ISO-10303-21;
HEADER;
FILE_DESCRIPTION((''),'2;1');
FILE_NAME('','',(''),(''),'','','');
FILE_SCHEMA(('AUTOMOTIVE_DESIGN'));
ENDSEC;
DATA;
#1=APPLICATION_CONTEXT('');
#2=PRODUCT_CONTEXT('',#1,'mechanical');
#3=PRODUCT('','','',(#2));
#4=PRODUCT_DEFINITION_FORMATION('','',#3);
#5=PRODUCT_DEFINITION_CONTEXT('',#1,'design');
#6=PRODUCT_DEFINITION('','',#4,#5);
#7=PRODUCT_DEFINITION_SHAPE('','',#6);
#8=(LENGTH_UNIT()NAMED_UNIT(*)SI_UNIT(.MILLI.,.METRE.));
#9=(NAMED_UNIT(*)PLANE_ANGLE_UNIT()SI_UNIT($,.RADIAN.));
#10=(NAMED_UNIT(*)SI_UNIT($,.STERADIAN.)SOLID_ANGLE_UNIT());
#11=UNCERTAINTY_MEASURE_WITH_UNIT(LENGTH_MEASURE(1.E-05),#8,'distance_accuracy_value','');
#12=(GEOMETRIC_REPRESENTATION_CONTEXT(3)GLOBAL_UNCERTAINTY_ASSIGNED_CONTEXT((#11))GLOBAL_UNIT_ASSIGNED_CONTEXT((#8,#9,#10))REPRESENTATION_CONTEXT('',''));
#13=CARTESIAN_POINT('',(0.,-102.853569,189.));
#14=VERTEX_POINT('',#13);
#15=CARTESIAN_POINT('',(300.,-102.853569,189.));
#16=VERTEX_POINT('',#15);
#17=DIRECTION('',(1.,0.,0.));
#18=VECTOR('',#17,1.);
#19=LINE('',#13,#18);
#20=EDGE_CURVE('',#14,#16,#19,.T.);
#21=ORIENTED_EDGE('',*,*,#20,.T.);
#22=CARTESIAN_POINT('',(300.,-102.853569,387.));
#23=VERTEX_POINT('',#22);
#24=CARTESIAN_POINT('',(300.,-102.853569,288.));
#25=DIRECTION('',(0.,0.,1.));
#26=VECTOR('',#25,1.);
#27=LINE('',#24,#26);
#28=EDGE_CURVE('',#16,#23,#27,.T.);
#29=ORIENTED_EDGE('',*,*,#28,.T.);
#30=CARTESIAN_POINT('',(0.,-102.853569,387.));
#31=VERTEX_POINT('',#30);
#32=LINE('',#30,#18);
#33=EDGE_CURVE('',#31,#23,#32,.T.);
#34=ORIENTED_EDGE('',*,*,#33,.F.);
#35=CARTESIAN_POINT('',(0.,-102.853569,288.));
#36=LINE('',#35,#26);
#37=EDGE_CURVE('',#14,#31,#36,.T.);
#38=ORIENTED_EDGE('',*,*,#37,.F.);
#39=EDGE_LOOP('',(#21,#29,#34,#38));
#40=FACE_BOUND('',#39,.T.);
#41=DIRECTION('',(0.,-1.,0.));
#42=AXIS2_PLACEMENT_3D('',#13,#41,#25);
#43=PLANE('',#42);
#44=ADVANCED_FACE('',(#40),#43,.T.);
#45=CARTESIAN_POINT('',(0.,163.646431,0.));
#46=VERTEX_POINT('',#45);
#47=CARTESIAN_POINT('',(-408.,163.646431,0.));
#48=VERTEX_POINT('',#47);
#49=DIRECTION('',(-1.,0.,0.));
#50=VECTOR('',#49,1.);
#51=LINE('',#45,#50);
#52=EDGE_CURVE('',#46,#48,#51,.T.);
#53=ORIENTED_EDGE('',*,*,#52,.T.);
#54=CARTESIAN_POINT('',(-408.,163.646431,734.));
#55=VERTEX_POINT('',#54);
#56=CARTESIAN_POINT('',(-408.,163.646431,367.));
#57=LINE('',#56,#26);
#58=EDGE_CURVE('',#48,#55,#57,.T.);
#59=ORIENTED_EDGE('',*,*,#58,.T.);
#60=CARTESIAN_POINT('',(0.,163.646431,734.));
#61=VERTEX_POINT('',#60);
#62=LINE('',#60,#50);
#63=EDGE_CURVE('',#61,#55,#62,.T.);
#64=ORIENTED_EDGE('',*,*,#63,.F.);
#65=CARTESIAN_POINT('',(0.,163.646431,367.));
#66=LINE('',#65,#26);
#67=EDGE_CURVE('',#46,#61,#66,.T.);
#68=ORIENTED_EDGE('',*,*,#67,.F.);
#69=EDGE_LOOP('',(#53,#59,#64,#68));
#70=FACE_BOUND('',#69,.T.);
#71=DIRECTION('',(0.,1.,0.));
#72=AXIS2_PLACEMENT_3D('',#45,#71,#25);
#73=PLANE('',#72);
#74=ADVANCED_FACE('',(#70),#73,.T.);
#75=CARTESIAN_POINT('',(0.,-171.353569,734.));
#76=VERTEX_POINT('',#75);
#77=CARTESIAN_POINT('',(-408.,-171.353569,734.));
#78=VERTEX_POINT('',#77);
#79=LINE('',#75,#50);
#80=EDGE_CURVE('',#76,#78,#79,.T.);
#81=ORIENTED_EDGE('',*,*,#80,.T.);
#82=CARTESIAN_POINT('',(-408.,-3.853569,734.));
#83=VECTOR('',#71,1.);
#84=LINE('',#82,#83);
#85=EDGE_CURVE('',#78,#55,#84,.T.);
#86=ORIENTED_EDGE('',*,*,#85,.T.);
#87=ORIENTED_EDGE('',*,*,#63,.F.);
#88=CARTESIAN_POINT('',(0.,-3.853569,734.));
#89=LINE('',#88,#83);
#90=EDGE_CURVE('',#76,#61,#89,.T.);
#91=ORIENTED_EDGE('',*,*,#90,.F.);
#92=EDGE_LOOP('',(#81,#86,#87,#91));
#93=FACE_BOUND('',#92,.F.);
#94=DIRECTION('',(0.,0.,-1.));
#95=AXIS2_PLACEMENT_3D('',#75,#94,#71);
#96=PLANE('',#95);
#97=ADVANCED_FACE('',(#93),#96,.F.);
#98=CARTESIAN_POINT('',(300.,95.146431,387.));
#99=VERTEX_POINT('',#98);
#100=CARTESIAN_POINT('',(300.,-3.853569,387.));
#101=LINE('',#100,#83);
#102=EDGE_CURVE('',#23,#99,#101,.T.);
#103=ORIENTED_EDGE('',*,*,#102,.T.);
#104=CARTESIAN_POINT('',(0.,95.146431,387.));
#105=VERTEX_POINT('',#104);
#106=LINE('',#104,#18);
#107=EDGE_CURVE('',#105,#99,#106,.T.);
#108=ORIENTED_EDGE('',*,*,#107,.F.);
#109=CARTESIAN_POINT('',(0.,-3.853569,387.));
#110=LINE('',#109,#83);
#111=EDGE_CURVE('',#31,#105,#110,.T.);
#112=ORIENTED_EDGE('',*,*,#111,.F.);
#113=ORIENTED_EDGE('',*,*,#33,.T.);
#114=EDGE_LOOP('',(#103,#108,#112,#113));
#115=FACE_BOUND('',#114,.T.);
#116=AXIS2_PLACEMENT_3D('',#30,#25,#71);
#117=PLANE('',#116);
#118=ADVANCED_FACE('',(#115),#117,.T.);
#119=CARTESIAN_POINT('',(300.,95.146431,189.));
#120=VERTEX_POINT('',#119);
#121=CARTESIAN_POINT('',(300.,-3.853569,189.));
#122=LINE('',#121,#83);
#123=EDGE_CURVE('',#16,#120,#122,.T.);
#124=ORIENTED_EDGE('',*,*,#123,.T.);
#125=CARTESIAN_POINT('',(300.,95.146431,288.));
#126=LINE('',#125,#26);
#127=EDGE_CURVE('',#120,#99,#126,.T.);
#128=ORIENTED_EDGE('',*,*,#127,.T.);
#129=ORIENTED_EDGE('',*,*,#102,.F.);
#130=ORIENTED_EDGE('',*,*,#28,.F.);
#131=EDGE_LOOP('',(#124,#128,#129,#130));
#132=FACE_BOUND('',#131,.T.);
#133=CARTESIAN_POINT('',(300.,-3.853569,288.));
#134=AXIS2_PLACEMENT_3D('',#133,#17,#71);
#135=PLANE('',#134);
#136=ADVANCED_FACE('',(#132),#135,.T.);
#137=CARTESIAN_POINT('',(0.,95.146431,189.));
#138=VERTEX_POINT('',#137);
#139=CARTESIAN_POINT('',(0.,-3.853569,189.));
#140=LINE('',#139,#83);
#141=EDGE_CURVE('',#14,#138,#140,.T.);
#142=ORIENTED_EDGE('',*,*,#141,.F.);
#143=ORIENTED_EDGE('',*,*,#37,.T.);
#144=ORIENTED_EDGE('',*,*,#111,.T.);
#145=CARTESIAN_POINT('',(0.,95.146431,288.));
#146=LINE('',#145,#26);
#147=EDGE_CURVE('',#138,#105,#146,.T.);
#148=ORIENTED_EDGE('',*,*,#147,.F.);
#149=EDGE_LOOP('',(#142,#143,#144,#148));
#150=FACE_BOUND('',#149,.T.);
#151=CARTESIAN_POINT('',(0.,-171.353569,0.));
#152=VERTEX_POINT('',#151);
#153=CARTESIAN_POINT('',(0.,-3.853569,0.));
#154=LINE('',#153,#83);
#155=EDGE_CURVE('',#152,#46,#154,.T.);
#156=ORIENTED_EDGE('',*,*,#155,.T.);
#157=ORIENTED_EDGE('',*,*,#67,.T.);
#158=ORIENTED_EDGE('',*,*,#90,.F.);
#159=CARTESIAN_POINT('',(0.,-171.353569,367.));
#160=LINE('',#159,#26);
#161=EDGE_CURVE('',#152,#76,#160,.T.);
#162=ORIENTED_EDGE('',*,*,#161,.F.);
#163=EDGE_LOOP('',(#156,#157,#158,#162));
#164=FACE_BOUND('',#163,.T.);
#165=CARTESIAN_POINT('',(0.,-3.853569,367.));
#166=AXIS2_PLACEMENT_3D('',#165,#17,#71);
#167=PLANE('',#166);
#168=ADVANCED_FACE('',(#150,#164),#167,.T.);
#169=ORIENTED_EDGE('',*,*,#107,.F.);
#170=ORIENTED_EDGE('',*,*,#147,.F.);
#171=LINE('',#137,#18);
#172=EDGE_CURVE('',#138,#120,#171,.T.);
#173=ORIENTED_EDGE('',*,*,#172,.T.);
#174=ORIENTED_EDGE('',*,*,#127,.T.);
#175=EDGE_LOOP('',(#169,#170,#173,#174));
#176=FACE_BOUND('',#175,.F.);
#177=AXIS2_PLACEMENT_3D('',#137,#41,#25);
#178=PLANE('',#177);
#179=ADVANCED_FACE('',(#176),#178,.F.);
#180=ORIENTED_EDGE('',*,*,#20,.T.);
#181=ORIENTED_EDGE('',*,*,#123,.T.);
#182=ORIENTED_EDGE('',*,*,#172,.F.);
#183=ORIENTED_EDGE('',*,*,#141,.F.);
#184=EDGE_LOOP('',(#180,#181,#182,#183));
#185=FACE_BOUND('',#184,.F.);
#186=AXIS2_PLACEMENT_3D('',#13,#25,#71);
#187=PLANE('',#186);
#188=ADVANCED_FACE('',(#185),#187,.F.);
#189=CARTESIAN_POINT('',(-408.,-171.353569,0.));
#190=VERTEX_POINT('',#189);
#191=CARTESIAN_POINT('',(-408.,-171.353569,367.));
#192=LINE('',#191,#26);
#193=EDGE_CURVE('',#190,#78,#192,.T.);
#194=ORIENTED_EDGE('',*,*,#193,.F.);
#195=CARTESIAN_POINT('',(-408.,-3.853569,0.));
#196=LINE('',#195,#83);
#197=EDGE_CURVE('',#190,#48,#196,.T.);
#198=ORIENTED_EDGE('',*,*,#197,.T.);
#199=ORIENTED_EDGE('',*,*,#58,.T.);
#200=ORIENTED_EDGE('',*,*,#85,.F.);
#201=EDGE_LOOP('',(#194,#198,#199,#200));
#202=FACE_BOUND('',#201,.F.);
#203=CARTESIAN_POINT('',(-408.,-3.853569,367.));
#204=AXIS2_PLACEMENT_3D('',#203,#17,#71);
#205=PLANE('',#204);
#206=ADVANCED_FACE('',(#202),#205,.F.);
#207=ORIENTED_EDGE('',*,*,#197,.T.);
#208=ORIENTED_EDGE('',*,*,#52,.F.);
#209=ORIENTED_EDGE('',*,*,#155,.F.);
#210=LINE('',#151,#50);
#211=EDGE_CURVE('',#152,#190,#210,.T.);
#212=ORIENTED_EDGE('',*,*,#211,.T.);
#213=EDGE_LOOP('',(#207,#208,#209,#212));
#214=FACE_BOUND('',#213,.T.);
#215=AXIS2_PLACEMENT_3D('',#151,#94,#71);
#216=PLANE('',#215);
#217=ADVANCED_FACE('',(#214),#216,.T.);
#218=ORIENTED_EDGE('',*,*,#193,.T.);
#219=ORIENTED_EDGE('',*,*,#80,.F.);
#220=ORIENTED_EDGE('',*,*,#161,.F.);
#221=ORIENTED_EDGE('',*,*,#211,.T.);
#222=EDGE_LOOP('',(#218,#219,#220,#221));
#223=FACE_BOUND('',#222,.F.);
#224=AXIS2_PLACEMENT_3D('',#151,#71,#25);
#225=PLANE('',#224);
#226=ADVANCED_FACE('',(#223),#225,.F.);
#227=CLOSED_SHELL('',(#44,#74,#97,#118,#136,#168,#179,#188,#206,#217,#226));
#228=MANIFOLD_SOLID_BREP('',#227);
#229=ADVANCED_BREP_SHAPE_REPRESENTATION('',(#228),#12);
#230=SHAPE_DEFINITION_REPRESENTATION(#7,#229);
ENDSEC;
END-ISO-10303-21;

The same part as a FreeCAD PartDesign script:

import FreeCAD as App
import Part
import Sketcher

V = App.Vector


def add_polygon(sketch, points):
    """Adds a closed chain of lines whose ends are joined by coincident constraints."""
    first, n = sketch.GeometryCount, len(points)
    for a, b in zip(points, points[1:] + points[:1]):
        sketch.addGeometry(Part.LineSegment(App.Vector(*a, 0), App.Vector(*b, 0)), False)
    for i in range(n):
        sketch.addConstraint(Sketcher.Constraint("Coincident", first + i, 2, first + (i + 1) % n, 1))

doc = App.newDocument("Part")
body = doc.addObject("PartDesign::Body", "Body")

# Sketch on YZ plane
sketch1 = doc.addObject("Sketcher::SketchObject", "Sketch")
body.addObject(sketch1)
sketch1.AttachmentSupport = (doc.YZ_Plane, [""])
sketch1.MapMode = "FlatFace"
add_polygon(sketch1, [(-171, 734), (-171, 0), (164, 0), (164, 734)])  # lines 0-3
sketch1.addConstraint([
    Sketcher.Constraint("Vertical", 0),
    Sketcher.Constraint("Horizontal", 1),
    Sketcher.Constraint("Vertical", 2),
    Sketcher.Constraint("Horizontal", 3),
    Sketcher.Constraint("PointOnObject", 0, 2, -1),
    Sketcher.Constraint("DistanceX", 1, 1, 1, 2, 335.0),
    Sketcher.Constraint("DistanceY", 0, 2, 0, 1, 734.0),
    Sketcher.Constraint("DistanceX", 0, 2, -1, 1, 171.353569),
])
pad1 = doc.addObject("PartDesign::Pad", "Pad")
body.addObject(pad1)
pad1.Profile = sketch1
pad1.Length = 408
pad1.Reversed = True

# Sketch on YZ plane
sketch2 = doc.addObject("Sketcher::SketchObject", "Sketch001")
body.addObject(sketch2)
sketch2.AttachmentSupport = (doc.YZ_Plane, [""])
sketch2.MapMode = "FlatFace"
add_polygon(sketch2, [(-103, 387), (-103, 189), (95, 189), (95, 387)])  # lines 0-3
sketch2.addConstraint([
    Sketcher.Constraint("Vertical", 0),
    Sketcher.Constraint("Horizontal", 1),
    Sketcher.Constraint("Vertical", 2),
    Sketcher.Constraint("Horizontal", 3),
    Sketcher.Constraint("Equal", 3, 0),
    Sketcher.Constraint("DistanceX", 1, 1, 1, 2, 198.0),
    Sketcher.Constraint("DistanceY", -1, 1, 0, 2, 189.0),
    Sketcher.Constraint("DistanceX", 0, 2, -1, 1, 102.853569),
])
pad2 = doc.addObject("PartDesign::Pad", "Pad001")
body.addObject(pad2)
pad2.Profile = sketch2
pad2.Length = 300

doc.recompute()
